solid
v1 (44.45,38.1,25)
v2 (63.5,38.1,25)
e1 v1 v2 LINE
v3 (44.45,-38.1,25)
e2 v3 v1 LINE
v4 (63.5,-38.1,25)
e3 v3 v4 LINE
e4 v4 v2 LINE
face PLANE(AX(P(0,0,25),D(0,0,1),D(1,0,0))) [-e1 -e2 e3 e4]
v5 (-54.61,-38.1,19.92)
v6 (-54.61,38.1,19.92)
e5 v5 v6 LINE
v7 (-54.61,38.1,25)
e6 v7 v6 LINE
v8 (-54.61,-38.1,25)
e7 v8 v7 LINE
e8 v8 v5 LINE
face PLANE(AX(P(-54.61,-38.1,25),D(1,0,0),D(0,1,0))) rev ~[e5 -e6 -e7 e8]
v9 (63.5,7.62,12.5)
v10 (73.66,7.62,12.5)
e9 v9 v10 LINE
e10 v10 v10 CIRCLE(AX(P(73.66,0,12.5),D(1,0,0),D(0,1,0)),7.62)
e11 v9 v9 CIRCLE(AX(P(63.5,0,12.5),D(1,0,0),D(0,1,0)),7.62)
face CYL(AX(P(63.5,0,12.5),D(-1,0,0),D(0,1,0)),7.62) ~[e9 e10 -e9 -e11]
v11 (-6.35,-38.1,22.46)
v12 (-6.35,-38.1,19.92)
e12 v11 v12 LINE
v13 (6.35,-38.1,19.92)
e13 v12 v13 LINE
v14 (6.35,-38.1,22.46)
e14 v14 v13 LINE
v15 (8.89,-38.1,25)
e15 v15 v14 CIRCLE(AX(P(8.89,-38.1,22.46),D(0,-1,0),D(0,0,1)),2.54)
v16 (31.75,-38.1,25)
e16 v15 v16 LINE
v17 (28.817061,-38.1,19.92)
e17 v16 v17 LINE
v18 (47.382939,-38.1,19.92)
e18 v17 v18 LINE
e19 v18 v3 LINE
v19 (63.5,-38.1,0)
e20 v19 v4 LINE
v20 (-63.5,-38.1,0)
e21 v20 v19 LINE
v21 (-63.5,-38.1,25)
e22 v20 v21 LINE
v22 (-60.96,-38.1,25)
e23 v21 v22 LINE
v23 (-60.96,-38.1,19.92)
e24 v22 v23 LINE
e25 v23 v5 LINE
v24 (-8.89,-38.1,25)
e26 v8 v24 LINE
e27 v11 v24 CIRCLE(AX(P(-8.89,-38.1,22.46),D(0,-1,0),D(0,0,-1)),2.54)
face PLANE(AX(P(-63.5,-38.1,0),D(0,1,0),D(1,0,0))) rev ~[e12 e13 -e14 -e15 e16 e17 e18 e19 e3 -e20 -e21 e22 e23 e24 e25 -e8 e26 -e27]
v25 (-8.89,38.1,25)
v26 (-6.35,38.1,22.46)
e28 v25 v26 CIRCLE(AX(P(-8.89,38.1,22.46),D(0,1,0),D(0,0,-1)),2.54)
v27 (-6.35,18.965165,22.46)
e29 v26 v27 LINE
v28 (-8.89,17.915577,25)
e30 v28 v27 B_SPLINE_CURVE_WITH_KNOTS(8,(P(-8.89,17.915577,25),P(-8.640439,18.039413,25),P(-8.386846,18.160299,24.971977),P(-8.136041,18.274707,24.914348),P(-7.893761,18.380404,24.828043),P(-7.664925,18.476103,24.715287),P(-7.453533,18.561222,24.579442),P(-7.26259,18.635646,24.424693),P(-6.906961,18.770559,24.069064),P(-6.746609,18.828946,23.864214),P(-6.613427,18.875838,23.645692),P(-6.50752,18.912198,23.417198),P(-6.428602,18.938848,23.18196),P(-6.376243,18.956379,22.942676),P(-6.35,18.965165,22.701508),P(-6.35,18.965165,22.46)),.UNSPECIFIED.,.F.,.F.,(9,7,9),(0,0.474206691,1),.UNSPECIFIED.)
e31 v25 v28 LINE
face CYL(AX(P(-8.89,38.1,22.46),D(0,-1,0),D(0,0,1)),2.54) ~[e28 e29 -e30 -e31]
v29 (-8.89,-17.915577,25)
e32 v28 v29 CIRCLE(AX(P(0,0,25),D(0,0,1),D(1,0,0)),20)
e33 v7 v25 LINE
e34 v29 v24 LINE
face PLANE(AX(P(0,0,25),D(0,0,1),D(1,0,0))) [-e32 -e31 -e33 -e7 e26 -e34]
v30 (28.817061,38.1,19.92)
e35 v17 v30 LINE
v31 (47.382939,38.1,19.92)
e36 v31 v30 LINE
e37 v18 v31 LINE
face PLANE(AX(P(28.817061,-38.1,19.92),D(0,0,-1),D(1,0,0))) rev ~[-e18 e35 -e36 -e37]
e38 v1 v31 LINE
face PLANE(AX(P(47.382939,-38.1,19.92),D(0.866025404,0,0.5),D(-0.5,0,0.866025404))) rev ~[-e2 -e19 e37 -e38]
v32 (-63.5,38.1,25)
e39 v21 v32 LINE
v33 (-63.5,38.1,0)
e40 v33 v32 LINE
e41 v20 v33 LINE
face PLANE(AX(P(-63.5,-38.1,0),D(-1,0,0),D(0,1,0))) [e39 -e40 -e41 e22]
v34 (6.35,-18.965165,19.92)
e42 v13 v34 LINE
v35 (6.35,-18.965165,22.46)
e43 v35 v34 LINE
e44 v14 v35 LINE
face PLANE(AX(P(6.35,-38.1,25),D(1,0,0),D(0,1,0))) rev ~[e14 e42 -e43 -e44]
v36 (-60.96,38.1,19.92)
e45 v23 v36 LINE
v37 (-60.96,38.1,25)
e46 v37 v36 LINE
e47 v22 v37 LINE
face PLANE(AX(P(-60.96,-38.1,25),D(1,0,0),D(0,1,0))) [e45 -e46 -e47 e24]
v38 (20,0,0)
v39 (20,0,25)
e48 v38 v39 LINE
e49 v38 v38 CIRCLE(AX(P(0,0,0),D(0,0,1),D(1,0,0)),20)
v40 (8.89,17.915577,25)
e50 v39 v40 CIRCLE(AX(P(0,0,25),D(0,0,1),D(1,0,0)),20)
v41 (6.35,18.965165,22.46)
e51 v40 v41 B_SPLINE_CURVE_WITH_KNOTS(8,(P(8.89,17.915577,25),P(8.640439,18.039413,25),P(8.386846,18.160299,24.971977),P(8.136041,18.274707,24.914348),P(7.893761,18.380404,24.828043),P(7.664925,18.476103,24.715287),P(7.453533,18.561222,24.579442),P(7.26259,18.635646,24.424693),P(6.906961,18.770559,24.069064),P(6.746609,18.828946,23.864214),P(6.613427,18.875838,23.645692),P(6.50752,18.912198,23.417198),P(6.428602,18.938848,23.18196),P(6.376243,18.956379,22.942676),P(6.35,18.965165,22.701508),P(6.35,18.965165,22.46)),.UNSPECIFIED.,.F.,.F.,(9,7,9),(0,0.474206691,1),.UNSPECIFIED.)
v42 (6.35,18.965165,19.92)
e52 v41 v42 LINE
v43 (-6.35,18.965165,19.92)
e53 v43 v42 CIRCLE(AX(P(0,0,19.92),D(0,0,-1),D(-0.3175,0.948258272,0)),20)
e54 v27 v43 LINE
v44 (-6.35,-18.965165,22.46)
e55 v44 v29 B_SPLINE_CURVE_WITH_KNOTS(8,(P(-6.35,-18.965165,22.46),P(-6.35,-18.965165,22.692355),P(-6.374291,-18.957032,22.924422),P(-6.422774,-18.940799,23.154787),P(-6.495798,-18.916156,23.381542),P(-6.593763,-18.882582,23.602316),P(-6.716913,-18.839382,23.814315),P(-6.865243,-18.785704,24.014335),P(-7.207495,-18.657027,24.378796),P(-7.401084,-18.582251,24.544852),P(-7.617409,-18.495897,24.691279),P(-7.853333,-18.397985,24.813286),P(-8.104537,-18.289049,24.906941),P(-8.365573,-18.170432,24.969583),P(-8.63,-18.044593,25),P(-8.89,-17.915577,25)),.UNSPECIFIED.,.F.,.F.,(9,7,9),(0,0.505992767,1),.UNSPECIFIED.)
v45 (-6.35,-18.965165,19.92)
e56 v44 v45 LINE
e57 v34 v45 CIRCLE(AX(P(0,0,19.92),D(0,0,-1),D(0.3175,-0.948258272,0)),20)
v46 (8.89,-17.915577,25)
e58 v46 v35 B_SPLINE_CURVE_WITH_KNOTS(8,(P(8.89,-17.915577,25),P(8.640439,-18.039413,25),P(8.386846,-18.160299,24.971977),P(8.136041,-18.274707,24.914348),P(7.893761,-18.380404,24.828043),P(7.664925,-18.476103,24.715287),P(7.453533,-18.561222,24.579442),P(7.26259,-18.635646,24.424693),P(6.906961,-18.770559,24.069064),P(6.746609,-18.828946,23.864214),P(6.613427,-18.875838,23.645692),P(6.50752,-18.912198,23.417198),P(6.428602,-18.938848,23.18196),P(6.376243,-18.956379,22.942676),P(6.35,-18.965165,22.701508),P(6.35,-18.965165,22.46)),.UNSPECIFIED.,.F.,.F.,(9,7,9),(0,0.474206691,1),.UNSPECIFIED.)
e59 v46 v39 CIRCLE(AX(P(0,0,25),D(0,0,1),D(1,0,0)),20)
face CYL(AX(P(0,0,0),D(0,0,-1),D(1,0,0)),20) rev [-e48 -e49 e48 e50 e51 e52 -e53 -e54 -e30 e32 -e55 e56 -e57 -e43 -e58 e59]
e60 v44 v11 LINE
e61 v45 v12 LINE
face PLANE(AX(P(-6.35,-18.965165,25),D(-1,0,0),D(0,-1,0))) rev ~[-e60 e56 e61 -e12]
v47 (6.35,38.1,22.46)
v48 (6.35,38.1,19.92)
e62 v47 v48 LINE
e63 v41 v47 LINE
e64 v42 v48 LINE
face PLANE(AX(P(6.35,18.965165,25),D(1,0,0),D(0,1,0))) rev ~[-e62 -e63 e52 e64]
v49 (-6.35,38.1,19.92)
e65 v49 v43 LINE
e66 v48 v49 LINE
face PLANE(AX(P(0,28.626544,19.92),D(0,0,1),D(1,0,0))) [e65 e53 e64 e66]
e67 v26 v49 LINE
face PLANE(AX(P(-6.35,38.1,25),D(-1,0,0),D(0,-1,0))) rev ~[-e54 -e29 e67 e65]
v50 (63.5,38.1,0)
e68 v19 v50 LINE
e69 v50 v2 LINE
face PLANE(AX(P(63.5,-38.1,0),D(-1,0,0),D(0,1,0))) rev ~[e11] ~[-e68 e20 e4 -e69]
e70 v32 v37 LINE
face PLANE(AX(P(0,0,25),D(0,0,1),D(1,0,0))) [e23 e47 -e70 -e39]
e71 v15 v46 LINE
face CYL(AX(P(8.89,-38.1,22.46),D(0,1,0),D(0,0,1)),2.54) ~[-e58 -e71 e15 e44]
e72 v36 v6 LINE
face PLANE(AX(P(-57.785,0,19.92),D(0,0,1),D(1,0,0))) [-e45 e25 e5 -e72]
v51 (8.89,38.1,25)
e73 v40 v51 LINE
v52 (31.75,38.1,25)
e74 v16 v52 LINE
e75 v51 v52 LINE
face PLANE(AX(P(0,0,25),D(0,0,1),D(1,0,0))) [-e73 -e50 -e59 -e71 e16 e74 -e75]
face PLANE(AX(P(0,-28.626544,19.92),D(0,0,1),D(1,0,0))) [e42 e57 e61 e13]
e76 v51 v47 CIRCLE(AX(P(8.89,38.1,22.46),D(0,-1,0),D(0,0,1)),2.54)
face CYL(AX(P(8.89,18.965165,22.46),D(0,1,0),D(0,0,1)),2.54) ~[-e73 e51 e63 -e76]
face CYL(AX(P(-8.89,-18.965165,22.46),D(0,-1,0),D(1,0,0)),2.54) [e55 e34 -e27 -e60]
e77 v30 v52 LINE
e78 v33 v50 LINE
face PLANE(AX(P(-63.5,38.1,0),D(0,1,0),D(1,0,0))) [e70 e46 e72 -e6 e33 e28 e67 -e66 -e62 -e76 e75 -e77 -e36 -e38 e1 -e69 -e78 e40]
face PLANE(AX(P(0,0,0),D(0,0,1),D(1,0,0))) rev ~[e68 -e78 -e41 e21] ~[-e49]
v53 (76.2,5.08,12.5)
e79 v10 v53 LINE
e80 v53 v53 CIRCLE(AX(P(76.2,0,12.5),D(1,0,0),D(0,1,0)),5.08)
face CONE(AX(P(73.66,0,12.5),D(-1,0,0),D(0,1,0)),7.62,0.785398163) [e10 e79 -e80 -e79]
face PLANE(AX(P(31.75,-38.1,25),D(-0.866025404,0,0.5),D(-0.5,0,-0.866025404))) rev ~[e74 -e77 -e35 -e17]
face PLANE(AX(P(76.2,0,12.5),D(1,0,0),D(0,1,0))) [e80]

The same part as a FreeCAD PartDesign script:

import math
import FreeCAD as App
import Part
import Sketcher
Q = App.Units.Quantity


def edges_at(feature, points):
    """Names of the edges that pass closest to the given points."""
    edges = feature.Shape.Edges
    near = lambda p: min(range(len(edges)), key=lambda i: edges[i].distToShape(Part.Vertex(*p))[0])
    return sorted({f"Edge{near(p) + 1}" for p in points})


def add_polygon(sketch, points):
    """Adds a closed chain of lines whose ends are joined by coincident constraints."""
    first, n = sketch.GeometryCount, len(points)
    for a, b in zip(points, points[1:] + points[:1]):
        sketch.addGeometry(Part.LineSegment(App.Vector(*a, 0), App.Vector(*b, 0)), False)
    for i in range(n):
        sketch.addConstraint(Sketcher.Constraint("Coincident", first + i, 2, first + (i + 1) % n, 1))

doc = App.newDocument("Part")
body = doc.addObject("PartDesign::Body", "Body")

# Sketch on XY plane
sketch1 = body.newObject("Sketcher::SketchObject", "Sketch")
sketch1.AttachmentSupport = (doc.getObject("XY_Plane"), [""])
sketch1.MapMode = "FlatFace"
add_polygon(sketch1, [(-64, 38), (-64, -38), (64, -38), (64, 38)])  # lines 0-3
sketch1.addGeometry(Part.Circle(App.Vector(0, 0, 0), App.Vector(0, 0, 1), 20), False)  # 4
sketch1.addConstraint([
    Sketcher.Constraint("Vertical", 0),
    Sketcher.Constraint("Horizontal", 1),
    Sketcher.Constraint("Vertical", 2),
    Sketcher.Constraint("Horizontal", 3),
    Sketcher.Constraint("Coincident", 4, 3, -1, 1),
    Sketcher.Constraint("Symmetric", 0, 2, 2, 2, -1, 1),
    Sketcher.Constraint("DistanceX", 1, 1, 1, 2, Q("5 in")),
    Sketcher.Constraint("DistanceY", 0, 2, 0, 1, Q("3 in")),
    Sketcher.Constraint("Diameter", 4, Q("40 mm")),
])
pad1 = body.newObject("PartDesign::Pad", "Pad")
pad1.Profile = sketch1
pad1.Length = 25

# Sketch on XY plane
sketch2 = body.newObject("Sketcher::SketchObject", "Sketch001")
sketch2.AttachmentSupport = (doc.getObject("XY_Plane"), [""])
sketch2.MapMode = "FlatFace"
sketch2.AttachmentOffset = App.Placement(App.Vector(0, 0, 25), App.Rotation())
add_polygon(sketch2, [(-61, 38), (-61, -38), (-55, -38), (-55, 38)])  # lines 0-3
sketch2.addGeometry(Part.LineSegment(App.Vector(-6, -19, 0), App.Vector(-6, -38, 0)), False)  # 4
sketch2.addGeometry(Part.LineSegment(App.Vector(-6, -38, 0), App.Vector(6, -38, 0)), False)  # 5
sketch2.addGeometry(Part.LineSegment(App.Vector(6, -38, 0), App.Vector(6, -19, 0)), False)  # 6
sketch2.addGeometry(Part.ArcOfCircle(Part.Circle(App.Vector(0, 0, 0), App.Vector(0, 0, 1), 20), math.radians(-109), math.radians(-71)), False)  # 7
sketch2.addGeometry(Part.LineSegment(App.Vector(6, 38, 0), App.Vector(-6, 38, 0)), False)  # 8
sketch2.addGeometry(Part.LineSegment(App.Vector(-6, 38, 0), App.Vector(-6, 19, 0)), False)  # 9
sketch2.addGeometry(Part.ArcOfCircle(Part.Circle(App.Vector(0, 0, 0), App.Vector(0, 0, 1), 20), math.radians(71), math.radians(109)), False)  # 10
sketch2.addGeometry(Part.LineSegment(App.Vector(6, 19, 0), App.Vector(6, 38, 0)), False)  # 11
sketch2.addConstraint([
    Sketcher.Constraint("Coincident", 4, 2, 5, 1),
    Sketcher.Constraint("Coincident", 5, 2, 6, 1),
    Sketcher.Constraint("Coincident", 6, 2, 7, 2),
    Sketcher.Constraint("Coincident", 7, 1, 4, 1),
    Sketcher.Constraint("Coincident", 8, 2, 9, 1),
    Sketcher.Constraint("Coincident", 9, 2, 10, 2),
    Sketcher.Constraint("Coincident", 10, 1, 11, 1),
    Sketcher.Constraint("Coincident", 11, 2, 8, 1),
    Sketcher.Constraint("Vertical", 0),
    Sketcher.Constraint("Horizontal", 1),
    Sketcher.Constraint("Vertical", 2),
    Sketcher.Constraint("Horizontal", 3),
    Sketcher.Constraint("Vertical", 4),
    Sketcher.Constraint("Horizontal", 5),
    Sketcher.Constraint("Vertical", 6),
    Sketcher.Constraint("Horizontal", 8),
    Sketcher.Constraint("Vertical", 9),
    Sketcher.Constraint("Vertical", 11),
    Sketcher.Constraint("Coincident", 7, 3, -1, 1),
    Sketcher.Constraint("Coincident", 10, 3, -1, 1),
    Sketcher.Constraint("Equal", 7, 10),
    Sketcher.Constraint("Symmetric", 5, 2, 8, 2, -1, 1),
    Sketcher.Constraint("Horizontal", 1, 2, 4, 2),
    Sketcher.Constraint("Horizontal", 6, 2, 7, 1),
    Sketcher.Constraint("Horizontal", 3, 2, 8, 2),
    Sketcher.Constraint("Horizontal", 9, 2, 10, 1),
    Sketcher.Constraint("DistanceY", 0, 2, 0, 1, Q("3 in")),
    Sketcher.Constraint("DistanceX", 5, 1, 5, 2, Q("0.5 in")),
    Sketcher.Constraint("DistanceX", 1, 1, 1, 2, Q("0.25 in")),
    Sketcher.Constraint("DistanceX", 0, 2, -1, 1, Q("2.4 in")),
    Sketcher.Constraint("Radius", 7, Q("20 mm")),
])
pocket1 = body.newObject("PartDesign::Pocket", "Pocket")
pocket1.Profile = sketch2
pocket1.Length = Q("0.2 in")

# Sketch on XZ plane
sketch3 = body.newObject("Sketcher::SketchObject", "Sketch002")
sketch3.AttachmentSupport = (doc.getObject("XZ_Plane"), [""])
sketch3.MapMode = "FlatFace"
sketch3.AttachmentOffset = App.Placement(App.Vector(0, 0, 1.5 * 25.4), App.Rotation())
add_polygon(sketch3, [(44, 25), (32, 25), (29, 20), (47, 20)])  # lines 0-3
sketch3.addConstraint([
    Sketcher.Constraint("Horizontal", 0),
    Sketcher.Constraint("Horizontal", 2),
    Sketcher.Constraint("Equal", 1, 3),
    Sketcher.Constraint("DistanceX", 0, 2, 0, 1, Q("0.5 in")),
    Sketcher.Constraint("Angle", 1, Q("-120 deg")),
    Sketcher.Constraint("DistanceY", 1, 2, 0, 2, Q("0.2 in")),
    Sketcher.Constraint("DistanceX", -1, 1, 0, 2, Q("1.25 in")),
    Sketcher.Constraint("DistanceY", -1, 1, 0, 2, Q("25 mm")),
])
pocket2 = body.newObject("PartDesign::Pocket", "Pocket001")
pocket2.Profile = sketch3
pocket2.Type = "ThroughAll"

# Sketch on YZ plane
sketch4 = body.newObject("Sketcher::SketchObject", "Sketch003")
sketch4.AttachmentSupport = (doc.getObject("YZ_Plane"), [""])
sketch4.MapMode = "FlatFace"
sketch4.AttachmentOffset = App.Placement(App.Vector(0, 0, 2.5 * 25.4), App.Rotation())
sketch4.addGeometry(Part.Circle(App.Vector(0, 12, 0), App.Vector(0, 0, 1), 8), False)
sketch4.addConstraint([
    Sketcher.Constraint("PointOnObject", 0, 3, -2),
    Sketcher.Constraint("Diameter", 0, Q("0.6 in")),
    Sketcher.Constraint("DistanceY", -1, 1, 0, 3, Q("12.5 mm")),
])
pad2 = body.newObject("PartDesign::Pad", "Pad001")
pad2.Profile = sketch4
pad2.Length = Q("0.5 in")
doc.recompute()

fillet = body.newObject("PartDesign::Fillet", "Fillet")
fillet.Base = (pad2, edges_at(pad2, [
    (-6.35, -28.533, 25),
    (-6.35, 28.533, 25),
    (6.35, 28.533, 25),
    (6.35, -28.533, 25),
]))
fillet.Radius = Q("0.1 in")
doc.recompute()

chamfer = body.newObject("PartDesign::Chamfer", "Chamfer")
chamfer.Base = (fillet, edges_at(fillet, [(76.2, -7.62, 12.5)]))
chamfer.Size = Q("0.1 in")

doc.recompute()
